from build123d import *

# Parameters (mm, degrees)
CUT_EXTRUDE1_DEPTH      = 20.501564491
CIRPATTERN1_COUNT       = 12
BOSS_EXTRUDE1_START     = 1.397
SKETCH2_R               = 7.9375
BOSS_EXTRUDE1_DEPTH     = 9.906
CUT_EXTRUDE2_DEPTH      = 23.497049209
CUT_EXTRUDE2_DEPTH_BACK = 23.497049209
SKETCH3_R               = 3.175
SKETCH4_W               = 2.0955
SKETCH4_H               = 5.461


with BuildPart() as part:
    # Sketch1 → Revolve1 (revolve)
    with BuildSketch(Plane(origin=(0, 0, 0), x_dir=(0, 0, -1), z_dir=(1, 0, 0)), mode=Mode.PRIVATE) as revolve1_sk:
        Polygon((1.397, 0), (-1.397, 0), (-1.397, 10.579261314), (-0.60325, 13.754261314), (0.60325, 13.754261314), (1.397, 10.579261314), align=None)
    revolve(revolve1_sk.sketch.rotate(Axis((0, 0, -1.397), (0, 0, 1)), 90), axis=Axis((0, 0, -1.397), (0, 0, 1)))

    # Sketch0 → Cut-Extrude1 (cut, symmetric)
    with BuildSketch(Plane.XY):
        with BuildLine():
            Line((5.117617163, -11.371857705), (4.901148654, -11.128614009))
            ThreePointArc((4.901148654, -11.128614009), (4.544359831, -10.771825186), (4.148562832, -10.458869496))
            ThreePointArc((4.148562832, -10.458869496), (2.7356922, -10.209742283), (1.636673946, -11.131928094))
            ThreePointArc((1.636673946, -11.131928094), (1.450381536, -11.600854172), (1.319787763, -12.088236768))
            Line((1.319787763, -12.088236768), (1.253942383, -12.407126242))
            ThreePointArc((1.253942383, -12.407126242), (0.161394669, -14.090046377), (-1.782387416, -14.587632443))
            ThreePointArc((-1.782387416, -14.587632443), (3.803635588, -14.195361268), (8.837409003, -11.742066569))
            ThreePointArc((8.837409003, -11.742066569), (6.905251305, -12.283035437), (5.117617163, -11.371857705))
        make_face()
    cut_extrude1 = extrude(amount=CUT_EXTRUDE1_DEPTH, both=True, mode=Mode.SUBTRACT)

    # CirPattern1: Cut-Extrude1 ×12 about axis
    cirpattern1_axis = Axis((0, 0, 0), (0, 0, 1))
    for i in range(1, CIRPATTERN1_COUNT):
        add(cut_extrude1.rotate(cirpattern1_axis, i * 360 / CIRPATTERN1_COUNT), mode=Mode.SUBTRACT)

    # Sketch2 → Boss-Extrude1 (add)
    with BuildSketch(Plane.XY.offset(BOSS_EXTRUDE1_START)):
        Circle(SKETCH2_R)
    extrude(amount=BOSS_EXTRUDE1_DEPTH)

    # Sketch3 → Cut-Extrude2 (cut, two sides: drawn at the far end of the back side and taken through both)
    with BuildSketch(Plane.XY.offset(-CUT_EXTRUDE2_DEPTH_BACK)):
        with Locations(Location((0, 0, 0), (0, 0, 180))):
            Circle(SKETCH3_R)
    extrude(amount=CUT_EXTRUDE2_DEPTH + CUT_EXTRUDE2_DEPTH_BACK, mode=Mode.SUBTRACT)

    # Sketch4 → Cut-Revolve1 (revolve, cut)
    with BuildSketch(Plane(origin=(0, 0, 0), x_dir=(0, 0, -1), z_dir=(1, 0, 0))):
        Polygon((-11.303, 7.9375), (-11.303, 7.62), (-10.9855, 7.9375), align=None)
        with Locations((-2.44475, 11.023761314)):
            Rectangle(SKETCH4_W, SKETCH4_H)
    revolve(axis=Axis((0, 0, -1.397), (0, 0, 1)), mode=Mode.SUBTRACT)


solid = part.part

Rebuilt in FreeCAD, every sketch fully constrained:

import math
import FreeCAD as App
import Part
import Sketcher

V = App.Vector
Q = App.Units.Quantity


def add_polygon(sketch, points):
    """Adds a closed chain of lines whose ends are joined by coincident constraints."""
    first, n = sketch.GeometryCount, len(points)
    for a, b in zip(points, points[1:] + points[:1]):
        sketch.addGeometry(Part.LineSegment(App.Vector(*a, 0), App.Vector(*b, 0)), False)
    for i in range(n):
        sketch.addConstraint(Sketcher.Constraint("Coincident", first + i, 2, first + (i + 1) % n, 1))

doc = App.newDocument("Part")
body = doc.addObject("PartDesign::Body", "Body")

sketch1 = body.newObject("Sketcher::SketchObject", "Sketch")
sketch1.AttachmentSupport = (doc.getObject("YZ_Plane"), [""])
sketch1.MapMode = "FlatFace"
add_polygon(sketch1, [(0, 1.4), (0, -1.4), (10.6, -1.4), (13.8, -0.6), (13.8, 0.6), (10.6, 1.4)])
sketch1.addConstraint([
    Sketcher.Constraint("Vertical", 0),
    Sketcher.Constraint("Horizontal", 1),
    Sketcher.Constraint("Vertical", 3),
    Sketcher.Constraint("Horizontal", 5),
    Sketcher.Constraint("Symmetric", 0, 2, 5, 2, -1, 1),
    Sketcher.Constraint("Vertical", 1, 2, 4, 2),
    Sketcher.Constraint("Equal", 2, 4),
    Sketcher.Constraint("DistanceY", 0, 2, 0, 1, Q("0.11 in")),
    Sketcher.Constraint("DistanceY", 3, 1, 3, 2, Q("0.0475 in")),
    Sketcher.Constraint("DistanceX", 1, 2, 2, 2, Q("0.125 in")),
    Sketcher.Constraint("DistanceX", 1, 1, 1, 2, 10.579261),
])
revolution = body.newObject("PartDesign::Revolution", "Revolution")
revolution.Profile = sketch1
revolution.ReferenceAxis = (sketch1, ["V_Axis"])
revolution.Angle = 360

sketch2 = body.newObject("Sketcher::SketchObject", "Sketch001")
sketch2.AttachmentSupport = (doc.getObject("XY_Plane"), [""])
sketch2.MapMode = "FlatFace"
sketch2.addGeometry([
    Part.LineSegment(V(5.12, -11.37, 0), V(4.9, -11.13, 0)),
    Part.ArcOfCircle(Part.Circle(V(1.66, -14.01, 0), V(0, 0, 1), 4.34), math.radians(41.67), math.radians(55)),
    Part.ArcOfCircle(Part.Circle(V(3.17, -11.85, 0), V(0, 0, 1), 1.7), math.radians(55), math.radians(155)),
    Part.ArcOfCircle(Part.Circle(V(5.57, -12.97, 0), V(0, 0, 1), 4.34), math.radians(155), math.radians(168.33)),
    Part.LineSegment(V(1.32, -12.09, 0), V(1.25, -12.41, 0)),
    Part.ArcOfCircle(Part.Circle(V(-1.45, -11.85, 0), V(0, 0, 1), 2.76), math.radians(-97), math.radians(-12)),
    Part.ArcOfCircle(Part.Circle(V(0, 0, 0), V(0, 0, 1), 14.7), math.radians(-97), math.radians(-53)),
    Part.ArcOfCircle(Part.Circle(V(7.18, -9.54, 0), V(0, 0, 1), 2.76), math.radians(-138), math.radians(-53)),
], False)
sketch2.addConstraint([
    Sketcher.Constraint("Tangent", 0, 2, 1, 1),
    Sketcher.Constraint("Tangent", 1, 2, 2, 1),
    Sketcher.Constraint("Tangent", 2, 2, 3, 1),
    Sketcher.Constraint("Tangent", 3, 2, 4, 1),
    Sketcher.Constraint("Tangent", 4, 2, 5, 2),
    Sketcher.Constraint("Tangent", 5, 1, 6, 1),
    Sketcher.Constraint("Tangent", 6, 2, 7, 2),
    Sketcher.Constraint("Tangent", 7, 1, 0, 1),
    Sketcher.Constraint("Coincident", 6, 3, -1, 1),
    Sketcher.Constraint("Equal", 1, 3),
    Sketcher.Constraint("Equal", 5, 7),
    Sketcher.Constraint("Horizontal", 2, 3, 5, 3),
    Sketcher.Constraint("Equal", 0, 4),
    Sketcher.Constraint("DistanceX", -1, 1, 2, 3, Q("0.125 in")),
    Sketcher.Constraint("DistanceX", 5, 3, -1, 1, Q("0.057 in")),
    Sketcher.Constraint("Radius", 6, 14.696119),
    Sketcher.Constraint("DistanceY", 2, 3, 7, 3, Q("0.091 in")),
    Sketcher.Constraint("Radius", 1, 4.338955),
    Sketcher.Constraint("Radius", 2, 1.697355),
    Sketcher.Constraint("Radius", 5, 2.758736),
    Sketcher.Constraint("DistanceX", 1, 2, 7, 3, 3.029899),
])
pocket1 = body.newObject("PartDesign::Pocket", "Pocket")
pocket1.Profile = sketch2
pocket1.Length = 41.003129
pocket1.Midplane = True
doc.recompute()

polarpattern = body.newObject("PartDesign::PolarPattern", "PolarPattern")
polarpattern.Originals = [pocket1]
polarpattern.Axis = (doc.getObject("Z_Axis"), [""])
polarpattern.Angle = 360
polarpattern.Occurrences = 12
body.Tip = polarpattern

sketch3 = body.newObject("Sketcher::SketchObject", "Sketch002")
sketch3.AttachmentSupport = (doc.getObject("XY_Plane"), [""])
sketch3.MapMode = "FlatFace"
sketch3.AttachmentOffset = App.Placement(V(0, 0, 0.055 * 25.4), App.Rotation())
sketch3.addGeometry(Part.Circle(V(0, 0, 0), V(0, 0, 1), 8), False)
sketch3.addConstraint([
    Sketcher.Constraint("Coincident", 0, 3, -1, 1),
    Sketcher.Constraint("Diameter", 0, Q("0.625 in")),
])
pad1 = body.newObject("PartDesign::Pad", "Pad")
pad1.Profile = sketch3
pad1.Length = Q("0.39 in")

sketch4 = body.newObject("Sketcher::SketchObject", "Sketch003")
sketch4.AttachmentSupport = (doc.getObject("XY_Plane"), [""])
sketch4.MapMode = "FlatFace"
sketch4.addGeometry(Part.Circle(V(0, 0, 0), V(0, 0, 1), 3.2), False)
sketch4.addConstraint([
    Sketcher.Constraint("Coincident", 0, 3, -1, 1),
    Sketcher.Constraint("Diameter", 0, Q("0.25 in")),
])
pocket2 = body.newObject("PartDesign::Pocket", "Pocket001")
pocket2.Profile = sketch4
pocket2.Type = "ThroughAll"
pocket2.Midplane = True

sketch5 = body.newObject("Sketcher::SketchObject", "Sketch004")
sketch5.AttachmentSupport = (doc.getObject("YZ_Plane"), [""])
sketch5.MapMode = "FlatFace"
add_polygon(sketch5, [(7.94, 11.3), (7.62, 11.3), (7.94, 10.99)])
add_polygon(sketch5, [(13.75, 3.49), (8.29, 3.49), (8.29, 1.4), (13.75, 1.4)])
sketch5.addConstraint([
    Sketcher.Constraint("Horizontal", 0),
    Sketcher.Constraint("Vertical", 2),
    Sketcher.Constraint("Horizontal", 3),
    Sketcher.Constraint("Vertical", 4),
    Sketcher.Constraint("Horizontal", 5),
    Sketcher.Constraint("Vertical", 6),
    Sketcher.Constraint("Equal", 0, 2),
    Sketcher.Constraint("DistanceX", -1, 1, 0, 2, Q("0.3 in")),
    Sketcher.Constraint("DistanceX", 3, 2, 3, 1, Q("0.215 in")),
    Sketcher.Constraint("DistanceY", 4, 2, 2, 2, Q("0.39 in")),
    Sketcher.Constraint("DistanceX", 0, 2, 0, 1, Q("0.0125 in")),
    Sketcher.Constraint("DistanceY", 4, 2, 4, 1, Q("0.0825 in")),
    Sketcher.Constraint("DistanceY", -1, 1, 0, 2, Q("0.445 in")),
    Sketcher.Constraint("DistanceX", -1, 1, 3, 2, 8.293261),
])
groove = body.newObject("PartDesign::Groove", "Groove")
groove.Profile = sketch5
groove.ReferenceAxis = (sketch5, ["V_Axis"])
groove.Angle = 360

doc.recompute()
